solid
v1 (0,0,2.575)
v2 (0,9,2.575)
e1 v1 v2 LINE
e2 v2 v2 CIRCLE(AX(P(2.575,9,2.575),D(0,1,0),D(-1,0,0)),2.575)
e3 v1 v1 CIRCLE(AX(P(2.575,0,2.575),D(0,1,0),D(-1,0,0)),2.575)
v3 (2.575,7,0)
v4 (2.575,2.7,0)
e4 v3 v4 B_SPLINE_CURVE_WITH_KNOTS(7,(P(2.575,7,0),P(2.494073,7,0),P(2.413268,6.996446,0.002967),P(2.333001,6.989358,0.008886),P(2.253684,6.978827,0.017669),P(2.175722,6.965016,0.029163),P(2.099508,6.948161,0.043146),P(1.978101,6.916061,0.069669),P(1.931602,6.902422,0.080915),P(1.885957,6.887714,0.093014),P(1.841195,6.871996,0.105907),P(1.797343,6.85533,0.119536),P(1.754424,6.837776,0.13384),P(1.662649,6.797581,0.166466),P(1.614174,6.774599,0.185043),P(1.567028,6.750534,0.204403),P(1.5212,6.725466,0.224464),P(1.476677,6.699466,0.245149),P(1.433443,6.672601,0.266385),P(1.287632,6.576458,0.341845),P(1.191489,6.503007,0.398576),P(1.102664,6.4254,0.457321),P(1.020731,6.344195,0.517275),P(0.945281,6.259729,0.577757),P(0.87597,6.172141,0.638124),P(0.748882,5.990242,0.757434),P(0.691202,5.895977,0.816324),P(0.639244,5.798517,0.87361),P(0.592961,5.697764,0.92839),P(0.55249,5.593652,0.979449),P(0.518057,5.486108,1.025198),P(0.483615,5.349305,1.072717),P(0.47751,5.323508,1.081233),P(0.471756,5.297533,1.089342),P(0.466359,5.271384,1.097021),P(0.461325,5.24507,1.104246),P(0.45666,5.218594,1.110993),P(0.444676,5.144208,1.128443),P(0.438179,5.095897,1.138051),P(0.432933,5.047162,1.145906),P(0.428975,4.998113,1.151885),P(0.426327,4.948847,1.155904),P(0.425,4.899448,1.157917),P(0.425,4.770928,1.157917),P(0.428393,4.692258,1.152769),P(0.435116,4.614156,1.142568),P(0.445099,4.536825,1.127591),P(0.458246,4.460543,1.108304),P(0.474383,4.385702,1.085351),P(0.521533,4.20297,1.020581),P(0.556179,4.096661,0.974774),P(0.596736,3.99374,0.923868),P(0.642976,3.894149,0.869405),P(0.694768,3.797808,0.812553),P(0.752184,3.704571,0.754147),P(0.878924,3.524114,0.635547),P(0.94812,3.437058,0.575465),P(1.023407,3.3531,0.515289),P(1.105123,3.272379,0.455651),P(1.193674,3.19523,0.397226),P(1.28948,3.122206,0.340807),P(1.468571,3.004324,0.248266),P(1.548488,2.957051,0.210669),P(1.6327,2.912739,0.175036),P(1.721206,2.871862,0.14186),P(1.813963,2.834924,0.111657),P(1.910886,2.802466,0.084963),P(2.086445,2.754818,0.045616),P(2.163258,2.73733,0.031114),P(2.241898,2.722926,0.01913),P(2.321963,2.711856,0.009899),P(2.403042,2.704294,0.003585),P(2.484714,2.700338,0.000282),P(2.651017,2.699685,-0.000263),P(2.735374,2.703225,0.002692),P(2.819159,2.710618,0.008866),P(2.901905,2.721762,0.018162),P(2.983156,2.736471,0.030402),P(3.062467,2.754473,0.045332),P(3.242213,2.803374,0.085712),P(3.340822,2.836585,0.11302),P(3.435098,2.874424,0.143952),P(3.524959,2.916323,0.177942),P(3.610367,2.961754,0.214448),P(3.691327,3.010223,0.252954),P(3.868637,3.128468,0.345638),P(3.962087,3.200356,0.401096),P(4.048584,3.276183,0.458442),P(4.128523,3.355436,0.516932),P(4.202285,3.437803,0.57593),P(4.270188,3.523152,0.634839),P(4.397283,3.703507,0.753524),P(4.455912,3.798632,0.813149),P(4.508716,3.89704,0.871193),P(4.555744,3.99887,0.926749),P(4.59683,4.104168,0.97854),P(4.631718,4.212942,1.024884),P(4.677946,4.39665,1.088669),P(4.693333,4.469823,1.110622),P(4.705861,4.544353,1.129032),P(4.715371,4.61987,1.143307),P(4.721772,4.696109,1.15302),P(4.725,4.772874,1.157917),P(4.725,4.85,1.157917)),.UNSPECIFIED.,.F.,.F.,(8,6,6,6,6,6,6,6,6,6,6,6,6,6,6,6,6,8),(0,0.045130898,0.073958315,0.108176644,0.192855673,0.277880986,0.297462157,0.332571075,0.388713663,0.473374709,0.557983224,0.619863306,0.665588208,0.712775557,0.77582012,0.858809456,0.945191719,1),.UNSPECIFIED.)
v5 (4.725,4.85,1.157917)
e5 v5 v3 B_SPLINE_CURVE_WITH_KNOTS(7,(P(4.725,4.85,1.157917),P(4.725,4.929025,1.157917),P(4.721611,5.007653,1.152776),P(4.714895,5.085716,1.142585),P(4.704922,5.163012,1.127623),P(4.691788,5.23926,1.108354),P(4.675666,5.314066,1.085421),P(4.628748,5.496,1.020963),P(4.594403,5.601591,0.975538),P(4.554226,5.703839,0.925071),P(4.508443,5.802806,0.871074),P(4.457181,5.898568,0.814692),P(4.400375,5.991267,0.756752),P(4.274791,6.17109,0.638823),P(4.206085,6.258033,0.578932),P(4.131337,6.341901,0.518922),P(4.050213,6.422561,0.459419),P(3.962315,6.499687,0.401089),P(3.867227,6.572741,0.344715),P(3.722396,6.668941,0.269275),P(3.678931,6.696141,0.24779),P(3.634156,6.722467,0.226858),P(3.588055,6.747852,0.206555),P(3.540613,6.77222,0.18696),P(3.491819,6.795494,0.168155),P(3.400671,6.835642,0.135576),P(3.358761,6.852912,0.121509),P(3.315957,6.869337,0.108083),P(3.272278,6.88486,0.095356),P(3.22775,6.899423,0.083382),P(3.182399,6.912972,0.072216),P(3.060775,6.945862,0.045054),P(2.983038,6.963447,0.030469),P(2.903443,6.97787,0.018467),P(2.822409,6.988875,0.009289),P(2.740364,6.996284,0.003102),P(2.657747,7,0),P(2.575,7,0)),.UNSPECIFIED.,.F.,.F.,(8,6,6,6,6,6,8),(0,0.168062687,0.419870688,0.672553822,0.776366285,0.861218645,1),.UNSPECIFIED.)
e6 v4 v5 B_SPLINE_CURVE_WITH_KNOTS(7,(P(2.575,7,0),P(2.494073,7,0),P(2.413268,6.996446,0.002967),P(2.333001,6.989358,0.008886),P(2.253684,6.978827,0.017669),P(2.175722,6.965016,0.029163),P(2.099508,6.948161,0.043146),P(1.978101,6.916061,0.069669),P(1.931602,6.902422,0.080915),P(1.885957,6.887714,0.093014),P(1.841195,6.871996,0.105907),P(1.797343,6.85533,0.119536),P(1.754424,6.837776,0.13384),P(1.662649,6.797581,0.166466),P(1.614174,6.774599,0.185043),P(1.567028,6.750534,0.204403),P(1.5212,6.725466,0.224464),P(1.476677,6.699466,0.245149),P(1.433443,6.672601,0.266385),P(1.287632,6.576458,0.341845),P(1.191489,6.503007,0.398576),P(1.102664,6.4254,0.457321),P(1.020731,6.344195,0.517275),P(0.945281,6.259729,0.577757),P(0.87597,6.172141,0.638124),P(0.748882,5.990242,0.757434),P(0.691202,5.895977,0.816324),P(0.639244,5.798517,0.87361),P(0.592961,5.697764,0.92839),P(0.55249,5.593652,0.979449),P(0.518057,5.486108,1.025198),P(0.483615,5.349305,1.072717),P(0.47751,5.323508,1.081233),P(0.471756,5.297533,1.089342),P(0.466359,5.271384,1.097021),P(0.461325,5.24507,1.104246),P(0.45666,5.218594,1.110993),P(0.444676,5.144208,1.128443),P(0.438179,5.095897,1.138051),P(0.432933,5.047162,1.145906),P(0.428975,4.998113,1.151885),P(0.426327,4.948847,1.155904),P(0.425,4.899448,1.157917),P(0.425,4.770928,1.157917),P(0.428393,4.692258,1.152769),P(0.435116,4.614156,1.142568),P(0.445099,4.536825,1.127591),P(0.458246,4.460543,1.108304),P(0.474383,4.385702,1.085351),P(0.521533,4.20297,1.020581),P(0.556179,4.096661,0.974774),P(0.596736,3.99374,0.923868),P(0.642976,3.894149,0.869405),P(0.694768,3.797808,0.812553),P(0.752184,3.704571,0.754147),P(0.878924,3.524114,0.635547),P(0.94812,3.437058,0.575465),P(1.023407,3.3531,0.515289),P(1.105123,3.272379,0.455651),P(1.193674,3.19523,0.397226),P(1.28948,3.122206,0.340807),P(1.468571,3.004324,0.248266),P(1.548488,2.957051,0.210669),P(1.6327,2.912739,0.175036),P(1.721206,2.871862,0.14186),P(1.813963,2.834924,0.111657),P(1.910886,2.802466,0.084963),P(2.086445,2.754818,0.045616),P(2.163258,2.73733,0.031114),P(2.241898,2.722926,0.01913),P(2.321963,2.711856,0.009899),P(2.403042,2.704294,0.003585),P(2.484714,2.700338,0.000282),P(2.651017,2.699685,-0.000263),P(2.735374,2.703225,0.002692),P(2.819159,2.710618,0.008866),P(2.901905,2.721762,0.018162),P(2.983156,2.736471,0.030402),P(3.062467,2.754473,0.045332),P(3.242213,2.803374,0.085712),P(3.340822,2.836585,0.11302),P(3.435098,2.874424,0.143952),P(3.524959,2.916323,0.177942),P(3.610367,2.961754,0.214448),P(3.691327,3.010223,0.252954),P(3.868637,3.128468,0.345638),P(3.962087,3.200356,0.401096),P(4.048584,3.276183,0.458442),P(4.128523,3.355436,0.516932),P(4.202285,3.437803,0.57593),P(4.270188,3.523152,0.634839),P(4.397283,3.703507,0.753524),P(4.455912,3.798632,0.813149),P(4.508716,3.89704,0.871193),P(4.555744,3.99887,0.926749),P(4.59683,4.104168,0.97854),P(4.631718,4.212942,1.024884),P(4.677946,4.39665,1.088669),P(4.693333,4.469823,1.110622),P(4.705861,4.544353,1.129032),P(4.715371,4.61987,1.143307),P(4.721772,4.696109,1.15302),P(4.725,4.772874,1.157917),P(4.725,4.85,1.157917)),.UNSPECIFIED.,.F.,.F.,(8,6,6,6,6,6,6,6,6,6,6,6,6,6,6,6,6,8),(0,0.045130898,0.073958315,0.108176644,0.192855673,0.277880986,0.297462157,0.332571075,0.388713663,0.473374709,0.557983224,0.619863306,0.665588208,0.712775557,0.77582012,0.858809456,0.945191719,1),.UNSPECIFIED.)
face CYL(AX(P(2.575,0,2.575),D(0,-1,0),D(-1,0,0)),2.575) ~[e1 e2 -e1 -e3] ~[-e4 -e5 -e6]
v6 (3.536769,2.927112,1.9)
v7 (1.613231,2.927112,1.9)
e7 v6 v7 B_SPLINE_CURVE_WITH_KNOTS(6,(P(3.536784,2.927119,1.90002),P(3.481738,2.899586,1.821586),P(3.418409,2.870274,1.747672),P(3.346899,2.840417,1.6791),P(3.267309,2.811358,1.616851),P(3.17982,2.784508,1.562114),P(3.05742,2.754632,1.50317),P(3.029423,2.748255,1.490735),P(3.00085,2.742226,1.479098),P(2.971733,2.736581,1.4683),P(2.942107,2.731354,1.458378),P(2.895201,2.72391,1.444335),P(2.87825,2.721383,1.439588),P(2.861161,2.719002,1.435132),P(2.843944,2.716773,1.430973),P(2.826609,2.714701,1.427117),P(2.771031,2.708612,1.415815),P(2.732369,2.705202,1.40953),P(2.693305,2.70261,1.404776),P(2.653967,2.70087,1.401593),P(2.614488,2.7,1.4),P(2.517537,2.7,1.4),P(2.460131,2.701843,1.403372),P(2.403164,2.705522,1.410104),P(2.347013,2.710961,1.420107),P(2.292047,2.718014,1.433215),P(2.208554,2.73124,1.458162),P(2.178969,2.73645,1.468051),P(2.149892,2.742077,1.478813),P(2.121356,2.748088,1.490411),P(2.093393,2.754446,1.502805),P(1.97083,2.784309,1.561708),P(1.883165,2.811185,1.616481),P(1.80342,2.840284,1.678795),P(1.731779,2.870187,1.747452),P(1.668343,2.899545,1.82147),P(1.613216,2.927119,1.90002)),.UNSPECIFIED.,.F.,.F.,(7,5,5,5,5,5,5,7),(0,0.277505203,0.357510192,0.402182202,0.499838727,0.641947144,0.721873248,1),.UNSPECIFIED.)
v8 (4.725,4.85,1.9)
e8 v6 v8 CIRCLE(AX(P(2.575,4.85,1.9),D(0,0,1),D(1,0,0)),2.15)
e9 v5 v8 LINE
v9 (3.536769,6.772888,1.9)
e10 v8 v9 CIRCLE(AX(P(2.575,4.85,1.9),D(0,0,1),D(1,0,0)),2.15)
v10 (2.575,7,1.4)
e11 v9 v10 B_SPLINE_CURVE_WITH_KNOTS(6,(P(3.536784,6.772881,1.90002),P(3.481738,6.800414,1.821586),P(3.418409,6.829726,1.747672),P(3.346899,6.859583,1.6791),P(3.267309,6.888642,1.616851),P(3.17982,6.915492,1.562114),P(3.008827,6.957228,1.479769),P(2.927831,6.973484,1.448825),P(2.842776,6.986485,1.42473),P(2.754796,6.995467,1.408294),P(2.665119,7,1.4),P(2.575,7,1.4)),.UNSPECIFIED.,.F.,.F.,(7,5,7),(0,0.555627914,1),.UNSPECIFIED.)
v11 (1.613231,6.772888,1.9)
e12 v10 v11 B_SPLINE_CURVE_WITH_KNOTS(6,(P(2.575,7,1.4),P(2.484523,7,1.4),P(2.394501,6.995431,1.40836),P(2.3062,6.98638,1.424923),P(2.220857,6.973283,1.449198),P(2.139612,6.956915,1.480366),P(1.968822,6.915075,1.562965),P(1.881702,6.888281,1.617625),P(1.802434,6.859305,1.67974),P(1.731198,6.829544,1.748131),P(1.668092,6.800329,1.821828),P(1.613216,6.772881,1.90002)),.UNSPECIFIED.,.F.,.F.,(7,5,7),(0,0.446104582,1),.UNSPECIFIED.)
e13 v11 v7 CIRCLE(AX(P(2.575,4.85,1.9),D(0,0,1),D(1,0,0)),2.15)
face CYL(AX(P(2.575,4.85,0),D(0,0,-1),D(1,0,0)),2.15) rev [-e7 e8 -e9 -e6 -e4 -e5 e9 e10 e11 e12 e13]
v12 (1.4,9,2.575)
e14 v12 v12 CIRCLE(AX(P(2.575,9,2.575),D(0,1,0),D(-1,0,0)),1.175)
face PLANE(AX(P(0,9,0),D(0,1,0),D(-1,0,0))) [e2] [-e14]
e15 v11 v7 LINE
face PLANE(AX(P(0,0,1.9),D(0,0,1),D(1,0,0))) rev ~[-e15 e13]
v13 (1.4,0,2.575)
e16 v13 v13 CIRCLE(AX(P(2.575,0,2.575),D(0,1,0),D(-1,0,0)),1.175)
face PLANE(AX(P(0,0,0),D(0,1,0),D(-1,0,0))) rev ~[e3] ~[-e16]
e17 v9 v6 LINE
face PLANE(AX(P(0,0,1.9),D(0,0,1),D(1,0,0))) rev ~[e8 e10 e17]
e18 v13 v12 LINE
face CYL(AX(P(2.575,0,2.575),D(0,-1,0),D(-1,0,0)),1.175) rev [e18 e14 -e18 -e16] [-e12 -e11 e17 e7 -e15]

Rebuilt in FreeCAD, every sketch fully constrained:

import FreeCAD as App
import Part
import Sketcher
from FreeCAD import Vector
Q = App.Units.Quantity

doc = App.newDocument("Part")
body = doc.addObject("PartDesign::Body", "Body")

# Sketch on XZ plane
sketch1 = body.newObject("Sketcher::SketchObject", "Sketch")
sketch1.AttachmentSupport = (doc.getObject("XZ_Plane"), [""])
sketch1.MapMode = "FlatFace"
sketch1.addGeometry(Part.Circle(Vector(2.6, 2.6, 0), Vector(0, 0, 1), 2.6), False)
sketch1.addGeometry(Part.Circle(Vector(2.6, 2.6, 0), Vector(0, 0, 1), 1.2), False)
sketch1.addConstraint(Sketcher.Constraint("Coincident", 1, 3, 0, 3))
sketch1.addConstraint(Sketcher.Constraint("Diameter", 0, Q("5.15 mm")))
sketch1.addConstraint(Sketcher.Constraint("Diameter", 1, Q("2.35 mm")))
sketch1.addConstraint(Sketcher.Constraint("DistanceX", -1, 1, 0, 3, Q("2.575 mm")))
sketch1.addConstraint(Sketcher.Constraint("DistanceY", -1, 1, 0, 3, Q("2.575 mm")))
pad1 = body.newObject("PartDesign::Pad", "Pad")
pad1.Profile = sketch1
pad1.Length = 9
pad1.Reversed = True

# Sketch on XY plane
sketch2 = body.newObject("Sketcher::SketchObject", "Sketch001")
sketch2.AttachmentSupport = (doc.getObject("XY_Plane"), [""])
sketch2.MapMode = "FlatFace"
sketch2.addGeometry(Part.Circle(Vector(2.6, 4.8, 0), Vector(0, 0, 1), 2.1), False)
sketch2.addConstraint(Sketcher.Constraint("Diameter", 0, Q("4.3 mm")))
sketch2.addConstraint(Sketcher.Constraint("DistanceX", -1, 1, 0, 3, Q("2.575 mm")))
sketch2.addConstraint(Sketcher.Constraint("DistanceY", -1, 1, 0, 3, Q("4.85 mm")))
pocket1 = body.newObject("PartDesign::Pocket", "Pocket")
pocket1.Profile = sketch2
pocket1.Length = 1.9
pocket1.Reversed = True

doc.recompute()
